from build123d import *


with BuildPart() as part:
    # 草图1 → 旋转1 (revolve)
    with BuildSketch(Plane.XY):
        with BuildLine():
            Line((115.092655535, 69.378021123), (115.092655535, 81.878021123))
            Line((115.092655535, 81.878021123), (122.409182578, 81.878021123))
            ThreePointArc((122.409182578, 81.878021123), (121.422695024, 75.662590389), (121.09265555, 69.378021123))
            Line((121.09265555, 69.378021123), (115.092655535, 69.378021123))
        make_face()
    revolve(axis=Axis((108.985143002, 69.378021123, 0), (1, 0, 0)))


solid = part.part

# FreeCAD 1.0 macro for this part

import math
import FreeCAD as App
import Part
import Sketcher

V = App.Vector
Q = App.Units.Quantity

doc = App.newDocument("Part")
body = doc.addObject("PartDesign::Body", "Body")

# Sketch on XY plane
sketch1 = body.newObject("Sketcher::SketchObject", "Sketch")
sketch1.AttachmentSupport = (doc.getObject("XY_Plane"), [""])
sketch1.MapMode = "FlatFace"
sketch1.addGeometry(Part.LineSegment(V(115.092656, 81.878021, 0), V(115.092656, 69.378021, 0)), False)
sketch1.addGeometry(Part.LineSegment(V(115.092656, 69.378021, 0), V(121.092656, 69.378021, 0)), False)
sketch1.addGeometry(Part.ArcOfCircle(Part.Circle(V(181.092656, 69.378021, 0), V(0, 0, 1), 60), math.radians(167.975301), math.radians(180)), False)
sketch1.addGeometry(Part.LineSegment(V(122.409183, 81.878021, 0), V(115.092656, 81.878021, 0)), False)
sketch1.addGeometry(Part.LineSegment(V(115.092656, 69.378021, 0), V(181.092656, 69.378021, 0)), True)  # axis
sketch1.addConstraint(Sketcher.Constraint("Coincident", 0, 2, 1, 1))
sketch1.addConstraint(Sketcher.Constraint("Coincident", 1, 2, 2, 2))
sketch1.addConstraint(Sketcher.Constraint("Coincident", 2, 1, 3, 1))
sketch1.addConstraint(Sketcher.Constraint("Coincident", 3, 2, 0, 1))
sketch1.addConstraint(Sketcher.Constraint("Vertical", 0))
sketch1.addConstraint(Sketcher.Constraint("Horizontal", 1))
sketch1.addConstraint(Sketcher.Constraint("Horizontal", 3))
sketch1.addConstraint(Sketcher.Constraint("Horizontal", 4))
sketch1.addConstraint(Sketcher.Constraint("Coincident", 4, 1, 0, 2))
sketch1.addConstraint(Sketcher.Constraint("Coincident", 4, 2, 2, 3))
sketch1.addConstraint(Sketcher.Constraint("Radius", 2, Q("60 mm")))
sketch1.addConstraint(Sketcher.Constraint("DistanceX", 1, 1, 1, 2, Q("6 mm")))
sketch1.addConstraint(Sketcher.Constraint("DistanceY", 0, 2, 0, 1, Q("12.5 mm")))
sketch1.addConstraint(Sketcher.Constraint("DistanceY", -1, 1, 2, 3, Q("69.378021 mm")))
sketch1.addConstraint(Sketcher.Constraint("DistanceX", -1, 1, 2, 3, Q("181.092656 mm")))
revolution = body.newObject("PartDesign::Revolution", "Revolution")
revolution.Profile = sketch1
revolution.ReferenceAxis = (sketch1, ["Axis0"])
revolution.Angle = 360

doc.recompute()
